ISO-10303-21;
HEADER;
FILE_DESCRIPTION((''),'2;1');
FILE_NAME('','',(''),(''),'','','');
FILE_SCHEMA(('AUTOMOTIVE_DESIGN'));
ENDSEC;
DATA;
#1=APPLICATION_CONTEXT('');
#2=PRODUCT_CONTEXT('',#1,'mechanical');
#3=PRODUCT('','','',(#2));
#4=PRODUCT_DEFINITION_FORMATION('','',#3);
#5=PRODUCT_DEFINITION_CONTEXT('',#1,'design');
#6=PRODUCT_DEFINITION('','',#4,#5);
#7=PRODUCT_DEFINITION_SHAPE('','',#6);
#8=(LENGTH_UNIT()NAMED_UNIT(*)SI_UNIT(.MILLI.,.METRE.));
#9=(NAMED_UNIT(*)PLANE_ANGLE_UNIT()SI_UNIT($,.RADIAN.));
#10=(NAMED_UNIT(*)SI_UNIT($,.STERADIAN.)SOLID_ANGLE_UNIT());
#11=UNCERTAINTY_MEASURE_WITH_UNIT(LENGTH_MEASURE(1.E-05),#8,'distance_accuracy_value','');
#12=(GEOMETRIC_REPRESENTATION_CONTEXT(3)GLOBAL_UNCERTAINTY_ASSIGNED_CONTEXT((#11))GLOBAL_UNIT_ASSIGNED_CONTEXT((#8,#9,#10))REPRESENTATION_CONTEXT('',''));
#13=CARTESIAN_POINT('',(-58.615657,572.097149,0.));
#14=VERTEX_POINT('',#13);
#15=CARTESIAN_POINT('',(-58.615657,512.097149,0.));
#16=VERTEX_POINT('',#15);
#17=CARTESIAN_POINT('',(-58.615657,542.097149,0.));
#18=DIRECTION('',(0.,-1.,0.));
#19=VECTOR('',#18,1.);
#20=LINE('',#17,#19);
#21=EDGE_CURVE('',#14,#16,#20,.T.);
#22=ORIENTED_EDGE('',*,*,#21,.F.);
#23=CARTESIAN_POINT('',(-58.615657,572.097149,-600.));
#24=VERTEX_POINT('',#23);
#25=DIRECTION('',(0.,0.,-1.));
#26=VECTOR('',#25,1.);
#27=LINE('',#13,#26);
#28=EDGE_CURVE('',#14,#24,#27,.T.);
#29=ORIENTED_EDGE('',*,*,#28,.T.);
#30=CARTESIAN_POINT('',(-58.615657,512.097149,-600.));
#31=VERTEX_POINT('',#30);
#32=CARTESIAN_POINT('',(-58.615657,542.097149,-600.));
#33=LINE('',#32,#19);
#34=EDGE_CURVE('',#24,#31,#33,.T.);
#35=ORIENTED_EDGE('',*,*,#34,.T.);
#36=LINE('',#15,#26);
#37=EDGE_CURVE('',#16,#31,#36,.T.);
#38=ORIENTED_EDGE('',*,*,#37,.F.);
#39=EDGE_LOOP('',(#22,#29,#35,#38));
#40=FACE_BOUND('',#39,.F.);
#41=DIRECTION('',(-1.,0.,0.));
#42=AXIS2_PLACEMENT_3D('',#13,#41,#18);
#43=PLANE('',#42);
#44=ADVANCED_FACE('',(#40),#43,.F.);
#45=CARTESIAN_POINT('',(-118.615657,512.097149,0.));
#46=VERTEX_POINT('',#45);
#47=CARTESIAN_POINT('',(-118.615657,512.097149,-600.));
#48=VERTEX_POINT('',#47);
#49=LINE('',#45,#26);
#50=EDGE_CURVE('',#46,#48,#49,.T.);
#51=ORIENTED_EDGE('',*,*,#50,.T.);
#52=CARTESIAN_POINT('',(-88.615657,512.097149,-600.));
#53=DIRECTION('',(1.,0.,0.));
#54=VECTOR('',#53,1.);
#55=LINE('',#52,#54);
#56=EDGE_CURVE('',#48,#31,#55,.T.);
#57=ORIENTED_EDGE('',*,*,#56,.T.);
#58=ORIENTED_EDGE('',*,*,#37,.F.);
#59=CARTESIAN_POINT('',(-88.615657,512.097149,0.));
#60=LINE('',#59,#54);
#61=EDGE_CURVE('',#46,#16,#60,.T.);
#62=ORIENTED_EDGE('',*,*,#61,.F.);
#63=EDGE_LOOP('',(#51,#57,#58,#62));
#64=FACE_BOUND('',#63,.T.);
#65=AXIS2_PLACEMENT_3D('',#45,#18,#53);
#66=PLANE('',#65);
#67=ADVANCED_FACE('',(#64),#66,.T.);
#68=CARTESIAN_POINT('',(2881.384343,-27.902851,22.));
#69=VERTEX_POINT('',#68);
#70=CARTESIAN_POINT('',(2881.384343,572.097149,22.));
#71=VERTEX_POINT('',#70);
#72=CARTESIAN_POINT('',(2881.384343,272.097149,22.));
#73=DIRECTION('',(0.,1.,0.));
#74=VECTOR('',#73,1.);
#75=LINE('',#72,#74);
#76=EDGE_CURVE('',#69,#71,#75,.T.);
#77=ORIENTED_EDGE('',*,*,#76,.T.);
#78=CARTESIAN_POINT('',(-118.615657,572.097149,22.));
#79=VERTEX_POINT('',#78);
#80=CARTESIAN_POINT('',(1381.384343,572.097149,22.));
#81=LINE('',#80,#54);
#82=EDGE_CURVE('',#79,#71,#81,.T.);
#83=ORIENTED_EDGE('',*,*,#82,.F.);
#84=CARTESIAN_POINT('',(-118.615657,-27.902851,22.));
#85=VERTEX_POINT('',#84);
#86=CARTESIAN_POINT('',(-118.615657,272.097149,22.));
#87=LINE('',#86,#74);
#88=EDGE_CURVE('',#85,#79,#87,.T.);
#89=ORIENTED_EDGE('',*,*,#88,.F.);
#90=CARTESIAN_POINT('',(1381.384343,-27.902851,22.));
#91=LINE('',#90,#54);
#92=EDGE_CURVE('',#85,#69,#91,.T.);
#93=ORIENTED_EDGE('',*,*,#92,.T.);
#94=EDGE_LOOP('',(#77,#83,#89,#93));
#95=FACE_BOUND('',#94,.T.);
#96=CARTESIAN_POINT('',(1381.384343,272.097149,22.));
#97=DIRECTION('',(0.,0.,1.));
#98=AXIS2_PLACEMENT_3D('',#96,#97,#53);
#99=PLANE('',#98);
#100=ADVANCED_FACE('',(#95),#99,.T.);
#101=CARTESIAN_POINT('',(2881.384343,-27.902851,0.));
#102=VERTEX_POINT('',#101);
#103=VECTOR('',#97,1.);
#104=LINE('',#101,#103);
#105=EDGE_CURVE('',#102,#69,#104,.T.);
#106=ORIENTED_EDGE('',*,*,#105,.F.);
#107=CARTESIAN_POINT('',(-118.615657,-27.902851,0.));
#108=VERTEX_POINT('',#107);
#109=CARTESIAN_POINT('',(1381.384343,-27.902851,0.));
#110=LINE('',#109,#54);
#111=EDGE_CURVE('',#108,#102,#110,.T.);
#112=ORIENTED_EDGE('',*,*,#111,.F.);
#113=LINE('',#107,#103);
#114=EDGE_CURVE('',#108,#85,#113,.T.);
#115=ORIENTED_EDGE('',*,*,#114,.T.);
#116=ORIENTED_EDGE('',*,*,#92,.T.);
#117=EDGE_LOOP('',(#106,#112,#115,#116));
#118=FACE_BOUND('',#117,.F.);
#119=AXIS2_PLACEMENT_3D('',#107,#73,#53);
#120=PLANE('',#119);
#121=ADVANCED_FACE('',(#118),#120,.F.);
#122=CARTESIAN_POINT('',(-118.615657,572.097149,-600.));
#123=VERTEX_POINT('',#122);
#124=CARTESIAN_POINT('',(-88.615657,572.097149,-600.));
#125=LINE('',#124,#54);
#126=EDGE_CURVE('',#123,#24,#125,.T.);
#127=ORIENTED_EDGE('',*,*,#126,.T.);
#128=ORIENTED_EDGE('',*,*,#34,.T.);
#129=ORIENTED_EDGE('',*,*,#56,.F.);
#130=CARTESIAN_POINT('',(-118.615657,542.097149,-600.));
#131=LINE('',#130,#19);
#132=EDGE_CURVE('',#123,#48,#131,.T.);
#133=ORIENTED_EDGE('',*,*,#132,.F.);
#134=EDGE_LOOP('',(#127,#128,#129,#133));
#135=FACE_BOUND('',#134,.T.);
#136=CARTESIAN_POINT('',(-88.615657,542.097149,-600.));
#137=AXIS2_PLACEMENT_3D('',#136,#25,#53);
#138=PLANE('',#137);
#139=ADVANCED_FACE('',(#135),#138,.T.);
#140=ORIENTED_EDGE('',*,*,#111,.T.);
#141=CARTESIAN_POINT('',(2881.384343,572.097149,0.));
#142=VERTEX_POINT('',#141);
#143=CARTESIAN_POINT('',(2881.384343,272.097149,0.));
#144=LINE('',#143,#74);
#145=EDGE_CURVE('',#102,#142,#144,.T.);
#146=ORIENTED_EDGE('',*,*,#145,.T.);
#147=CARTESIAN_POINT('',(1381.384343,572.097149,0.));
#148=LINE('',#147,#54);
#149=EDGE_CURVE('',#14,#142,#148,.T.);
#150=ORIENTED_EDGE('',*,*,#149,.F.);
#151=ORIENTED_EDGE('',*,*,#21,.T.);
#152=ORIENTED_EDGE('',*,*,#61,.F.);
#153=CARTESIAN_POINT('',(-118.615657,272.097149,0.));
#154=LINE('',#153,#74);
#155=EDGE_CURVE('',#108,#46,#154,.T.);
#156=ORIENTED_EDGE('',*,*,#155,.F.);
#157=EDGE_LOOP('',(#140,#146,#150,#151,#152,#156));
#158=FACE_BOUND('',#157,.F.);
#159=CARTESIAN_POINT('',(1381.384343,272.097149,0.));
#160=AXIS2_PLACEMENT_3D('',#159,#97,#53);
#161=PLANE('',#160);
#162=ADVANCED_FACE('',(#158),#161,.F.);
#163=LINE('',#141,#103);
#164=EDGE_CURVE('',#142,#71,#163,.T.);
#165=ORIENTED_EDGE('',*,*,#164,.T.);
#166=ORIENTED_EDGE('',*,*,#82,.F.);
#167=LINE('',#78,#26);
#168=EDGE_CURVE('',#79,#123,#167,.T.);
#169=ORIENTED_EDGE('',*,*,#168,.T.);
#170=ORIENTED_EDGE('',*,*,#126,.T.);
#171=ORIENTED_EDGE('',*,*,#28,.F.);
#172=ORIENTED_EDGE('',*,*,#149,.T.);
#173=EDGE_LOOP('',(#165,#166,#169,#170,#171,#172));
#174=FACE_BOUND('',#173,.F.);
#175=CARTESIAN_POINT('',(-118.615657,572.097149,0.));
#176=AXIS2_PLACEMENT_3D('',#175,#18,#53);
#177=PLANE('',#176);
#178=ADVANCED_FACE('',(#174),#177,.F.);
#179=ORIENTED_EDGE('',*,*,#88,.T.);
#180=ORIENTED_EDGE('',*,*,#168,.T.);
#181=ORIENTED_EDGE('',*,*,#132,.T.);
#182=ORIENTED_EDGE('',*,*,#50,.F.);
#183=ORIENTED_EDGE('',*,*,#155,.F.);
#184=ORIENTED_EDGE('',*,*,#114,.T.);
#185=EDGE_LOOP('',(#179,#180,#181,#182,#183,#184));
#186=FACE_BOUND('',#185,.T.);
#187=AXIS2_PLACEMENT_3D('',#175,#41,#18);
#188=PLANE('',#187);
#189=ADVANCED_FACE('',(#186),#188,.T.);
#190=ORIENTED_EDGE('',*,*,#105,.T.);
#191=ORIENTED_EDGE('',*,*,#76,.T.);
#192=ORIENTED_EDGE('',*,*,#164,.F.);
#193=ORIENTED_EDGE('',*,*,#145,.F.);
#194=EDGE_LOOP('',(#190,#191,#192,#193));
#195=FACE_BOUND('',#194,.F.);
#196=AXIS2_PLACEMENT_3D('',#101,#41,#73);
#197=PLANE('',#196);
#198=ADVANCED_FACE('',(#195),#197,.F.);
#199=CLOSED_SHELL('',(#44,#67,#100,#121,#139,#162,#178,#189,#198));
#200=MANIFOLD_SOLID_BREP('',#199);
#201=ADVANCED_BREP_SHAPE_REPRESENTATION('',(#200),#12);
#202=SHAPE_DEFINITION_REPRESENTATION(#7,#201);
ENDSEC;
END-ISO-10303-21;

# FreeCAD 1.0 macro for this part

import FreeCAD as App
import Part
import Sketcher
from FreeCAD import Vector
Q = App.Units.Quantity


def add_polygon(sketch, points):
    """Adds a closed chain of lines whose ends are joined by coincident constraints."""
    first, n = sketch.GeometryCount, len(points)
    for a, b in zip(points, points[1:] + points[:1]):
        sketch.addGeometry(Part.LineSegment(App.Vector(*a, 0), App.Vector(*b, 0)), False)
    for i in range(n):
        sketch.addConstraint(Sketcher.Constraint("Coincident", first + i, 2, first + (i + 1) % n, 1))

doc = App.newDocument("Part")
params = doc.addObject("Spreadsheet::Sheet", "Params")
for row, (alias, value) in enumerate([
    ("sketch1_width", "3000 mm"),
    ("sketch1_height", "600 mm"),
    ("pad1_length", "22 mm"),
    ("sketch2_width", "60 mm"),
    ("pad2_length", "600 mm"),
], start=1):
    params.set(f"A{row}", alias)
    params.set(f"B{row}", "=" + value)
    params.setAlias(f"B{row}", alias)

body = doc.addObject("PartDesign::Body", "Body")

# Sketch on XY plane
sketch1 = doc.addObject("Sketcher::SketchObject", "Sketch")
body.addObject(sketch1)
sketch1.AttachmentSupport = (doc.XY_Plane, [""])
sketch1.MapMode = "FlatFace"
add_polygon(sketch1, [(-119, 572), (-119, -28), (2881, -28), (2881, 572)])  # lines 0-3
sketch1.addConstraint(Sketcher.Constraint("Vertical", 0))
sketch1.addConstraint(Sketcher.Constraint("Horizontal", 1))
sketch1.addConstraint(Sketcher.Constraint("Vertical", 2))
sketch1.addConstraint(Sketcher.Constraint("Horizontal", 3))
sketch1.addConstraint(Sketcher.Constraint("DistanceX", 1, 1, 1, 2, Q("3000 mm")))
sketch1.addConstraint(Sketcher.Constraint("DistanceY", 0, 2, 0, 1, Q("600 mm")))
sketch1.addConstraint(Sketcher.Constraint("DistanceY", 0, 2, -1, 1, Q("27.902851 mm")))
sketch1.addConstraint(Sketcher.Constraint("DistanceX", 0, 2, -1, 1, Q("118.615657 mm")))
sketch1.setExpression("Constraints[8]", "Params.sketch1_width")
sketch1.setExpression("Constraints[9]", "Params.sketch1_height")
pad1 = doc.addObject("PartDesign::Pad", "Pad")
body.addObject(pad1)
pad1.Profile = sketch1
pad1.setExpression("Length", "Params.pad1_length")

# Sketch on XY plane
sketch2 = doc.addObject("Sketcher::SketchObject", "Sketch001")
body.addObject(sketch2)
sketch2.AttachmentSupport = (doc.XY_Plane, [""])
sketch2.MapMode = "FlatFace"
add_polygon(sketch2, [(-119, 512), (-119, 572), (-59, 572), (-59, 512)])  # lines 0-3
sketch2.addConstraint(Sketcher.Constraint("Vertical", 0))
sketch2.addConstraint(Sketcher.Constraint("Horizontal", 1))
sketch2.addConstraint(Sketcher.Constraint("Vertical", 2))
sketch2.addConstraint(Sketcher.Constraint("Horizontal", 3))
sketch2.addConstraint(Sketcher.Constraint("Equal", 3, 0))
sketch2.addConstraint(Sketcher.Constraint("DistanceX", 1, 1, 1, 2, Q("60 mm")))
sketch2.addConstraint(Sketcher.Constraint("DistanceY", -1, 1, 0, 2, Q("572.097149 mm")))
sketch2.addConstraint(Sketcher.Constraint("DistanceX", 0, 2, -1, 1, Q("118.615657 mm")))
sketch2.setExpression("Constraints[9]", "Params.sketch2_width")
pad2 = doc.addObject("PartDesign::Pad", "Pad001")
body.addObject(pad2)
pad2.Profile = sketch2
pad2.setExpression("Length", "Params.pad2_length")
pad2.Reversed = True

doc.recompute()
